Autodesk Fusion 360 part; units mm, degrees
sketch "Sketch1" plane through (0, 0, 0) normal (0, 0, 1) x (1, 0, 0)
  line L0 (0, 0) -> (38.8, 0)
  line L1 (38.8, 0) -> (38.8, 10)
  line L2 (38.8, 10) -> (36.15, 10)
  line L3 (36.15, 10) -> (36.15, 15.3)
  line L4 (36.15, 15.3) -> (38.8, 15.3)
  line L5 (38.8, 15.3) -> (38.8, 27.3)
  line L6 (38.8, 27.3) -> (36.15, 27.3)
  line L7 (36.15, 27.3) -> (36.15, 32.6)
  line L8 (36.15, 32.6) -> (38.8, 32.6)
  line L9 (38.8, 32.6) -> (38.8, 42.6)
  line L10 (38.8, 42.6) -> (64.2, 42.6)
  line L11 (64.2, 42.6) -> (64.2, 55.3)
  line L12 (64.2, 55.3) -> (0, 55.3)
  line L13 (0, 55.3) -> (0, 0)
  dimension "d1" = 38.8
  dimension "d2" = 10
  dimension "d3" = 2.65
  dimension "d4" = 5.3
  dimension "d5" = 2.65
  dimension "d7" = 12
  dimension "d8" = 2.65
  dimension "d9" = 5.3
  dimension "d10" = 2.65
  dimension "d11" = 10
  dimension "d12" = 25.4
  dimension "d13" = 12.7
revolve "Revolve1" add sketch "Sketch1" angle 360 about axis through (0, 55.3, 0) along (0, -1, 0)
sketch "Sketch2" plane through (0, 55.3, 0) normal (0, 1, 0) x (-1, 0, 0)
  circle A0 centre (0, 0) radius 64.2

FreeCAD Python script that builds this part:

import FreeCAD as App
import Part
import Sketcher
from FreeCAD import Vector
Q = App.Units.Quantity

doc = App.newDocument("Part")
body = doc.addObject("PartDesign::Body", "Body")

# Sketch on XY plane
sketch1 = body.newObject("Sketcher::SketchObject", "Sketch")
sketch1.AttachmentSupport = (doc.getObject("XY_Plane"), [""])
sketch1.MapMode = "FlatFace"
sketch1.addGeometry(Part.LineSegment(Vector(0, 55.3, 0), Vector(0, 0, 0)), False)
sketch1.addGeometry(Part.LineSegment(Vector(0, 0, 0), Vector(38.8, 0, 0)), False)
sketch1.addGeometry(Part.LineSegment(Vector(38.8, 0, 0), Vector(38.8, 10, 0)), False)
sketch1.addGeometry(Part.LineSegment(Vector(38.8, 10, 0), Vector(36.1, 10, 0)), False)
sketch1.addGeometry(Part.LineSegment(Vector(36.1, 10, 0), Vector(36.1, 15.3, 0)), False)
sketch1.addGeometry(Part.LineSegment(Vector(36.1, 15.3, 0), Vector(38.8, 15.3, 0)), False)
sketch1.addGeometry(Part.LineSegment(Vector(38.8, 15.3, 0), Vector(38.8, 27.3, 0)), False)
sketch1.addGeometry(Part.LineSegment(Vector(38.8, 27.3, 0), Vector(36.1, 27.3, 0)), False)
sketch1.addGeometry(Part.LineSegment(Vector(36.1, 27.3, 0), Vector(36.1, 32.6, 0)), False)
sketch1.addGeometry(Part.LineSegment(Vector(36.1, 32.6, 0), Vector(38.8, 32.6, 0)), False)
sketch1.addGeometry(Part.LineSegment(Vector(38.8, 32.6, 0), Vector(38.8, 42.6, 0)), False)
sketch1.addGeometry(Part.LineSegment(Vector(38.8, 42.6, 0), Vector(64.2, 42.6, 0)), False)
sketch1.addGeometry(Part.LineSegment(Vector(64.2, 42.6, 0), Vector(64.2, 55.3, 0)), False)
sketch1.addGeometry(Part.LineSegment(Vector(64.2, 55.3, 0), Vector(0, 55.3, 0)), False)
sketch1.addConstraint(Sketcher.Constraint("Coincident", 0, 2, 1, 1))
sketch1.addConstraint(Sketcher.Constraint("Coincident", 1, 2, 2, 1))
sketch1.addConstraint(Sketcher.Constraint("Coincident", 2, 2, 3, 1))
sketch1.addConstraint(Sketcher.Constraint("Coincident", 3, 2, 4, 1))
sketch1.addConstraint(Sketcher.Constraint("Coincident", 4, 2, 5, 1))
sketch1.addConstraint(Sketcher.Constraint("Coincident", 5, 2, 6, 1))
sketch1.addConstraint(Sketcher.Constraint("Coincident", 6, 2, 7, 1))
sketch1.addConstraint(Sketcher.Constraint("Coincident", 7, 2, 8, 1))
sketch1.addConstraint(Sketcher.Constraint("Coincident", 8, 2, 9, 1))
sketch1.addConstraint(Sketcher.Constraint("Coincident", 9, 2, 10, 1))
sketch1.addConstraint(Sketcher.Constraint("Coincident", 10, 2, 11, 1))
sketch1.addConstraint(Sketcher.Constraint("Coincident", 11, 2, 12, 1))
sketch1.addConstraint(Sketcher.Constraint("Coincident", 12, 2, 13, 1))
sketch1.addConstraint(Sketcher.Constraint("Coincident", 13, 2, 0, 1))
sketch1.addConstraint(Sketcher.Constraint("Vertical", 0))
sketch1.addConstraint(Sketcher.Constraint("Horizontal", 1))
sketch1.addConstraint(Sketcher.Constraint("Vertical", 2))
sketch1.addConstraint(Sketcher.Constraint("Horizontal", 3))
sketch1.addConstraint(Sketcher.Constraint("Vertical", 4))
sketch1.addConstraint(Sketcher.Constraint("Horizontal", 5))
sketch1.addConstraint(Sketcher.Constraint("Vertical", 6))
sketch1.addConstraint(Sketcher.Constraint("Horizontal", 7))
sketch1.addConstraint(Sketcher.Constraint("Vertical", 8))
sketch1.addConstraint(Sketcher.Constraint("Horizontal", 9))
sketch1.addConstraint(Sketcher.Constraint("Vertical", 10))
sketch1.addConstraint(Sketcher.Constraint("Horizontal", 11))
sketch1.addConstraint(Sketcher.Constraint("Vertical", 12))
sketch1.addConstraint(Sketcher.Constraint("Horizontal", 13))
sketch1.addConstraint(Sketcher.Constraint("Coincident", 0, 2, -1, 1))
sketch1.addConstraint(Sketcher.Constraint("Vertical", 2, 2, 5, 2))
sketch1.addConstraint(Sketcher.Constraint("Vertical", 4, 2, 7, 2))
sketch1.addConstraint(Sketcher.Constraint("Vertical", 6, 2, 9, 2))
sketch1.addConstraint(Sketcher.Constraint("Equal", 4, 8))
sketch1.addConstraint(Sketcher.Constraint("Equal", 2, 10))
sketch1.addConstraint(Sketcher.Constraint("DistanceY", 2, 1, 2, 2, Q("10 mm")))
sketch1.addConstraint(Sketcher.Constraint("DistanceY", 6, 1, 6, 2, Q("12 mm")))
sketch1.addConstraint(Sketcher.Constraint("DistanceX", 1, 1, 1, 2, Q("38.8 mm")))
sketch1.addConstraint(Sketcher.Constraint("DistanceX", 11, 1, 11, 2, Q("25.4 mm")))
sketch1.addConstraint(Sketcher.Constraint("DistanceY", 4, 1, 4, 2, Q("5.3 mm")))
sketch1.addConstraint(Sketcher.Constraint("DistanceY", 12, 1, 12, 2, Q("12.7 mm")))
sketch1.addConstraint(Sketcher.Constraint("DistanceX", 3, 2, 3, 1, Q("2.65 mm")))
revolution = body.newObject("PartDesign::Revolution", "Revolution")
revolution.Profile = sketch1
revolution.ReferenceAxis = (sketch1, ["V_Axis"])
revolution.Angle = 360

doc.recompute()
